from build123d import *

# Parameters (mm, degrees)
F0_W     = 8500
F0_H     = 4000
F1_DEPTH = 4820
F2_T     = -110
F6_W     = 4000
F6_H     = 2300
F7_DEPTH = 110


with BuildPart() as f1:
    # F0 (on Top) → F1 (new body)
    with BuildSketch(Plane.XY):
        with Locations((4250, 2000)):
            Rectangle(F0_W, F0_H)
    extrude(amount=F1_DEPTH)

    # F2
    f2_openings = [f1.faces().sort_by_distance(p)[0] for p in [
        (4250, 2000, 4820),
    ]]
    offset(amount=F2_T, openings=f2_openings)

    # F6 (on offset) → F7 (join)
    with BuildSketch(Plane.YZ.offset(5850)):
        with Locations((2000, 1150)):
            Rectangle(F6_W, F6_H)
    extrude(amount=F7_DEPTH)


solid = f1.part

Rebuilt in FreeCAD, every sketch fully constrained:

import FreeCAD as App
import Part
import Sketcher
from FreeCAD import Vector
Q = App.Units.Quantity


def faces_at(feature, points):
    """Names of the faces that lie closest to the given points."""
    faces = feature.Shape.Faces
    near = lambda p: min(range(len(faces)), key=lambda i: faces[i].distToShape(Part.Vertex(*p))[0])
    return sorted({f"Face{near(p) + 1}" for p in points})

doc = App.newDocument("Part")
body = doc.addObject("PartDesign::Body", "Body")

# Sketch on XY plane
sketch1 = body.newObject("Sketcher::SketchObject", "Sketch")
sketch1.AttachmentSupport = (doc.getObject("XY_Plane"), [""])
sketch1.MapMode = "FlatFace"
sketch1.addGeometry([
    Part.LineSegment(Vector(0, 4000, 0), Vector(0, 0, 0)),
    Part.LineSegment(Vector(0, 0, 0), Vector(8500, 0, 0)),
    Part.LineSegment(Vector(8500, 0, 0), Vector(8500, 4000, 0)),
    Part.LineSegment(Vector(8500, 4000, 0), Vector(0, 4000, 0)),
], False)
sketch1.addConstraint([
    Sketcher.Constraint("Coincident", 0, 2, 1, 1),
    Sketcher.Constraint("Coincident", 1, 2, 2, 1),
    Sketcher.Constraint("Coincident", 2, 2, 3, 1),
    Sketcher.Constraint("Coincident", 3, 2, 0, 1),
    Sketcher.Constraint("Vertical", 0),
    Sketcher.Constraint("Horizontal", 1),
    Sketcher.Constraint("Vertical", 2),
    Sketcher.Constraint("Horizontal", 3),
    Sketcher.Constraint("Coincident", 0, 2, -1, 1),
    Sketcher.Constraint("DistanceX", 1, 1, 1, 2, Q("8500 mm")),
    Sketcher.Constraint("DistanceY", 0, 2, 0, 1, Q("4000 mm")),
])
pad1 = body.newObject("PartDesign::Pad", "Pad")
pad1.Profile = sketch1
pad1.Length = 4820
doc.recompute()

thickness = body.newObject("PartDesign::Thickness", "Thickness")
thickness.Base = (pad1, faces_at(pad1, [(4250, 2000, 4820)]))
thickness.Value = 110
thickness.Reversed = True
thickness.Join = "Arc"

# Sketch on YZ plane
sketch2 = body.newObject("Sketcher::SketchObject", "Sketch001")
sketch2.AttachmentSupport = (doc.getObject("YZ_Plane"), [""])
sketch2.MapMode = "FlatFace"
sketch2.AttachmentOffset = App.Placement(Vector(0, 0, 5850), App.Rotation())
sketch2.addGeometry([
    Part.LineSegment(Vector(0, 2300, 0), Vector(0, 0, 0)),
    Part.LineSegment(Vector(0, 0, 0), Vector(4000, 0, 0)),
    Part.LineSegment(Vector(4000, 0, 0), Vector(4000, 2300, 0)),
    Part.LineSegment(Vector(4000, 2300, 0), Vector(0, 2300, 0)),
], False)
sketch2.addConstraint([
    Sketcher.Constraint("Coincident", 0, 2, 1, 1),
    Sketcher.Constraint("Coincident", 1, 2, 2, 1),
    Sketcher.Constraint("Coincident", 2, 2, 3, 1),
    Sketcher.Constraint("Coincident", 3, 2, 0, 1),
    Sketcher.Constraint("Vertical", 0),
    Sketcher.Constraint("Horizontal", 1),
    Sketcher.Constraint("Vertical", 2),
    Sketcher.Constraint("Horizontal", 3),
    Sketcher.Constraint("Coincident", 0, 2, -1, 1),
    Sketcher.Constraint("DistanceX", 1, 1, 1, 2, Q("4000 mm")),
    Sketcher.Constraint("DistanceY", 0, 2, 0, 1, Q("2300 mm")),
])
pad2 = body.newObject("PartDesign::Pad", "Pad001")
pad2.Profile = sketch2
pad2.Length = 110

doc.recompute()
